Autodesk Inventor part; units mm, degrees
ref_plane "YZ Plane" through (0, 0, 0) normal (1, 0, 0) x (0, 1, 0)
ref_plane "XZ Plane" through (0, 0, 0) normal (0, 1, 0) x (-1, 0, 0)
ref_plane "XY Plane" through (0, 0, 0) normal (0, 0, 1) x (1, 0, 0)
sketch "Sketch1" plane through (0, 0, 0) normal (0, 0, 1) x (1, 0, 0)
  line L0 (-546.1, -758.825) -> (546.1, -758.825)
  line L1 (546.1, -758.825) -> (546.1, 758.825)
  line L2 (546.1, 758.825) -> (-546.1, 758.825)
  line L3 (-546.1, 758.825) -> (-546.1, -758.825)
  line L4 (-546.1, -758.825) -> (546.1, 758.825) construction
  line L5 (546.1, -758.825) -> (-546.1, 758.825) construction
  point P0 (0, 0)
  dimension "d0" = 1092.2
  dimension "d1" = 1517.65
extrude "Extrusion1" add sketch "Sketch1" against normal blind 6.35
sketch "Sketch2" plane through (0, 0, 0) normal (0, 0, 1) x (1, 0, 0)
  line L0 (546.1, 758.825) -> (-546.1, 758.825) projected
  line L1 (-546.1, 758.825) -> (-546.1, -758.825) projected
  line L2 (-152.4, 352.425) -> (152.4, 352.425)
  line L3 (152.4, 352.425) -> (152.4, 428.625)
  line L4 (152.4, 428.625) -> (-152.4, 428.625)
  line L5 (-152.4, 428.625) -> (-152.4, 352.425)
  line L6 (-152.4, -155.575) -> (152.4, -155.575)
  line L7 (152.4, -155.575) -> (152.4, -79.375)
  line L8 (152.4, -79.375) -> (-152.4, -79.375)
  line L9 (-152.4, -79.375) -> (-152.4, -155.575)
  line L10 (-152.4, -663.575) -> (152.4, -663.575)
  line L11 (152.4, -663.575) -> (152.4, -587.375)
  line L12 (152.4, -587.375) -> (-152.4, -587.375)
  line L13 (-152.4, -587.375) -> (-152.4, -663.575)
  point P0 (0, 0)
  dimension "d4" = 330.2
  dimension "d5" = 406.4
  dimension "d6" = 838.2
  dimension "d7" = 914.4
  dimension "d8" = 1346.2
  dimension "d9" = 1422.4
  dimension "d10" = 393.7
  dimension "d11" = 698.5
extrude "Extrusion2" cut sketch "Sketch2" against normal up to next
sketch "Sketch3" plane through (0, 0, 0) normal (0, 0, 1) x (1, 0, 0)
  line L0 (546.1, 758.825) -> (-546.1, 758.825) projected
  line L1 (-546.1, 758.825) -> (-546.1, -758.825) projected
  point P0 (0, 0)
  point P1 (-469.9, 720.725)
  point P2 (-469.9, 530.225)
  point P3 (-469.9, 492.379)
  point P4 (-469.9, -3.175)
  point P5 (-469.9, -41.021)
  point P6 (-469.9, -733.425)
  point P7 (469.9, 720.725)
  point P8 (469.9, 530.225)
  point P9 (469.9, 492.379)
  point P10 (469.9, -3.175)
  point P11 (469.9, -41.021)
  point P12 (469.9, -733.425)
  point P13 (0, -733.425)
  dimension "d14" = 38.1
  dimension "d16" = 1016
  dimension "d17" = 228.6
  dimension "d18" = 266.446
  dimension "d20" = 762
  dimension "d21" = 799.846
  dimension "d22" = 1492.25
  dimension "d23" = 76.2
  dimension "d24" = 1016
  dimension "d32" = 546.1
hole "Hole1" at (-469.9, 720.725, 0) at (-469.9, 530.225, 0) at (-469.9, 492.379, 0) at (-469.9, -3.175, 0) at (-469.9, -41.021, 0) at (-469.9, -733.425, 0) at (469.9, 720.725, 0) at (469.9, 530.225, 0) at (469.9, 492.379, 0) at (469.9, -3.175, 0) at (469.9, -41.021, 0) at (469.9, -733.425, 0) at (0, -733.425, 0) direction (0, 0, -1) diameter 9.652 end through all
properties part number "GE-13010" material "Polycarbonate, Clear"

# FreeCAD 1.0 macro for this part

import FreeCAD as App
import Part
import Sketcher
from FreeCAD import Vector
Q = App.Units.Quantity


def add_polygon(sketch, points):
    """Adds a closed chain of lines whose ends are joined by coincident constraints."""
    first, n = sketch.GeometryCount, len(points)
    for a, b in zip(points, points[1:] + points[:1]):
        sketch.addGeometry(Part.LineSegment(App.Vector(*a, 0), App.Vector(*b, 0)), False)
    for i in range(n):
        sketch.addConstraint(Sketcher.Constraint("Coincident", first + i, 2, first + (i + 1) % n, 1))

doc = App.newDocument("Part")
body = doc.addObject("PartDesign::Body", "Body")

# Sketch on XY plane
sketch1 = body.newObject("Sketcher::SketchObject", "Sketch")
sketch1.AttachmentSupport = (doc.getObject("XY_Plane"), [""])
sketch1.MapMode = "FlatFace"
add_polygon(sketch1, [(-546, 759), (-546, -759), (546, -759), (546, 759)])  # lines 0-3
sketch1.addConstraint([
    Sketcher.Constraint("Vertical", 0),
    Sketcher.Constraint("Horizontal", 1),
    Sketcher.Constraint("Vertical", 2),
    Sketcher.Constraint("Horizontal", 3),
    Sketcher.Constraint("Symmetric", 0, 2, 2, 2, -1, 1),
    Sketcher.Constraint("DistanceX", 1, 1, 1, 2, Q("43 in")),
    Sketcher.Constraint("DistanceY", 0, 2, 0, 1, Q("59.75 in")),
])
pad1 = body.newObject("PartDesign::Pad", "Pad")
pad1.Profile = sketch1
pad1.Length = Q("0.25 in")
pad1.Reversed = True

# Sketch on XY plane
sketch2 = body.newObject("Sketcher::SketchObject", "Sketch001")
sketch2.AttachmentSupport = (doc.getObject("XY_Plane"), [""])
sketch2.MapMode = "FlatFace"
add_polygon(sketch2, [(-152, 429), (-152, 352), (152, 352), (152, 429)])  # lines 0-3
add_polygon(sketch2, [(-152, -79), (-152, -156), (152, -156), (152, -79)])  # lines 4-7
add_polygon(sketch2, [(-152, -587), (-152, -664), (152, -664), (152, -587)])  # lines 8-11
sketch2.addConstraint([
    Sketcher.Constraint("Vertical", 0),
    Sketcher.Constraint("Horizontal", 1),
    Sketcher.Constraint("Vertical", 2),
    Sketcher.Constraint("Horizontal", 3),
    Sketcher.Constraint("Vertical", 4),
    Sketcher.Constraint("Horizontal", 5),
    Sketcher.Constraint("Vertical", 6),
    Sketcher.Constraint("Horizontal", 7),
    Sketcher.Constraint("Vertical", 8),
    Sketcher.Constraint("Horizontal", 9),
    Sketcher.Constraint("Vertical", 10),
    Sketcher.Constraint("Horizontal", 11),
    Sketcher.Constraint("Vertical", 3, 2, 4, 2),
    Sketcher.Constraint("Vertical", 2, 2, 5, 2),
    Sketcher.Constraint("Vertical", 7, 2, 8, 2),
    Sketcher.Constraint("Vertical", 6, 2, 9, 2),
    Sketcher.Constraint("Equal", 2, 4),
    Sketcher.Constraint("Equal", 6, 8),
    Sketcher.Constraint("DistanceX", 1, 1, 1, 2, Q("12 in")),
    Sketcher.Constraint("DistanceY", 0, 2, 0, 1, Q("3 in")),
    Sketcher.Constraint("DistanceX", 0, 2, -1, 1, Q("6 in")),
    Sketcher.Constraint("DistanceY", 4, 2, 0, 2, Q("20 in")),
    Sketcher.Constraint("DistanceY", 8, 2, 4, 2, Q("20 in")),
    Sketcher.Constraint("DistanceY", -1, 1, 0, 2, Q("13.875 in")),
])
pocket1 = body.newObject("PartDesign::Pocket", "Pocket")
pocket1.Profile = sketch2
pocket1.Type = "UpToFirst"

# Sketch on XY plane
sketch3 = body.newObject("Sketcher::SketchObject", "Sketch002")
sketch3.AttachmentSupport = (doc.getObject("XY_Plane"), [""])
sketch3.MapMode = "FlatFace"
sketch3.addGeometry([
    Part.Circle(Vector(-469.9, 720.7, 0), Vector(0, 0, 1), 4.8),  # 0
    Part.Circle(Vector(-469.9, 530.2, 0), Vector(0, 0, 1), 4.8),  # 1
    Part.Circle(Vector(-469.9, 492.4, 0), Vector(0, 0, 1), 4.8),  # 2
    Part.Circle(Vector(-469.9, -3.2, 0), Vector(0, 0, 1), 4.8),  # 3
    Part.Circle(Vector(-469.9, -41, 0), Vector(0, 0, 1), 4.8),  # 4
    Part.Circle(Vector(-469.9, -733.4, 0), Vector(0, 0, 1), 4.8),  # 5
    Part.Circle(Vector(469.9, 720.7, 0), Vector(0, 0, 1), 4.8),  # 6
    Part.Circle(Vector(469.9, 530.2, 0), Vector(0, 0, 1), 4.8),  # 7
    Part.Circle(Vector(469.9, 492.4, 0), Vector(0, 0, 1), 4.8),  # 8
    Part.Circle(Vector(469.9, -3.2, 0), Vector(0, 0, 1), 4.8),  # 9
    Part.Circle(Vector(469.9, -41, 0), Vector(0, 0, 1), 4.8),  # 10
    Part.Circle(Vector(469.9, -733.4, 0), Vector(0, 0, 1), 4.8),  # 11
    Part.Circle(Vector(0, -733.4, 0), Vector(0, 0, 1), 4.8),  # 12
], False)
sketch3.addConstraint([
    Sketcher.Constraint("Equal", 0, 1),
    Sketcher.Constraint("Equal", 1, 2),
    Sketcher.Constraint("Equal", 2, 3),
    Sketcher.Constraint("Equal", 3, 4),
    Sketcher.Constraint("Equal", 4, 5),
    Sketcher.Constraint("Equal", 5, 6),
    Sketcher.Constraint("Equal", 6, 7),
    Sketcher.Constraint("Equal", 7, 8),
    Sketcher.Constraint("Equal", 8, 9),
    Sketcher.Constraint("Equal", 9, 10),
    Sketcher.Constraint("Equal", 10, 11),
    Sketcher.Constraint("Equal", 11, 12),
    Sketcher.Constraint("Symmetric", 0, 3, 6, 3, -2),
    Sketcher.Constraint("Symmetric", 1, 3, 7, 3, -2),
    Sketcher.Constraint("Symmetric", 2, 3, 8, 3, -2),
    Sketcher.Constraint("Symmetric", 3, 3, 9, 3, -2),
    Sketcher.Constraint("Symmetric", 4, 3, 10, 3, -2),
    Sketcher.Constraint("Symmetric", 5, 3, 11, 3, -2),
    Sketcher.Constraint("PointOnObject", 12, 3, -2),
    Sketcher.Constraint("Horizontal", 11, 3, 12, 3),
    Sketcher.Constraint("Vertical", 0, 3, 1, 3),
    Sketcher.Constraint("Vertical", 1, 3, 2, 3),
    Sketcher.Constraint("Vertical", 2, 3, 3, 3),
    Sketcher.Constraint("Vertical", 3, 3, 4, 3),
    Sketcher.Constraint("Vertical", 4, 3, 5, 3),
    Sketcher.Constraint("Diameter", 0, Q("0.38 in")),
    Sketcher.Constraint("DistanceY", 3, 3, 1, 3, Q("21 in")),
    Sketcher.Constraint("DistanceY", 4, 3, 2, 3, Q("21 in")),
    Sketcher.Constraint("DistanceX", 0, 3, 6, 3, Q("37 in")),
    Sketcher.Constraint("DistanceY", 1, 3, 0, 3, Q("7.5 in")),
    Sketcher.Constraint("DistanceY", 2, 3, 1, 3, Q("1.49 in")),
    Sketcher.Constraint("DistanceY", 5, 3, 4, 3, Q("27.26 in")),
    Sketcher.Constraint("DistanceY", -1, 1, 0, 3, Q("28.375 in")),
])
doc.recompute()
hole = body.newObject("PartDesign::Hole", "Hole")
hole.Profile = sketch3
hole.ThreadType = "None"
hole.Diameter = Q("0.38 in")
hole.DepthType = "ThroughAll"

doc.recompute()
